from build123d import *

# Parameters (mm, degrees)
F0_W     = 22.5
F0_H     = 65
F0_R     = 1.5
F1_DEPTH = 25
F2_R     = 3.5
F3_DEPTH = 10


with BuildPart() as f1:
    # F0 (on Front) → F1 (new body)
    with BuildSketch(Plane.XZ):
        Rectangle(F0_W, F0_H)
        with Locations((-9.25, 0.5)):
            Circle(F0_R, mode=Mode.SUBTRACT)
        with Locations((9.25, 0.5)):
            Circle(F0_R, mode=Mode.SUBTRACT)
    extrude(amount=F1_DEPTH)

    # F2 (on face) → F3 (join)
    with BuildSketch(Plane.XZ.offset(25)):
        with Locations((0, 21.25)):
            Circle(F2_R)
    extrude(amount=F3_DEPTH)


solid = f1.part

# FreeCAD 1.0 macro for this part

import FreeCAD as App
import Part
import Sketcher

V = App.Vector
Q = App.Units.Quantity

doc = App.newDocument("Part")
body = doc.addObject("PartDesign::Body", "Body")

# Sketch on XZ plane
sketch1 = doc.addObject("Sketcher::SketchObject", "Sketch")
body.addObject(sketch1)
sketch1.AttachmentSupport = (doc.XZ_Plane, [""])
sketch1.MapMode = "FlatFace"
sketch1.addGeometry([
    Part.LineSegment(V(-11.25, 32.5, 0), V(-11.25, -32.5, 0)),  # 0
    Part.LineSegment(V(-11.25, -32.5, 0), V(11.25, -32.5, 0)),  # 1
    Part.LineSegment(V(11.25, -32.5, 0), V(11.25, 32.5, 0)),  # 2
    Part.LineSegment(V(11.25, 32.5, 0), V(-11.25, 32.5, 0)),  # 3
    Part.Circle(V(-9.25, 0.5, 0), V(0, 0, 1), 1.5),  # 4
    Part.Circle(V(9.25, 0.5, 0), V(0, 0, 1), 1.5),  # 5
], False)
sketch1.addConstraint([
    Sketcher.Constraint("Coincident", 0, 2, 1, 1),
    Sketcher.Constraint("Coincident", 1, 2, 2, 1),
    Sketcher.Constraint("Coincident", 2, 2, 3, 1),
    Sketcher.Constraint("Coincident", 3, 2, 0, 1),
    Sketcher.Constraint("Vertical", 0),
    Sketcher.Constraint("Horizontal", 1),
    Sketcher.Constraint("Vertical", 2),
    Sketcher.Constraint("Horizontal", 3),
    Sketcher.Constraint("Equal", 4, 5),
    Sketcher.Constraint("Symmetric", 0, 2, 2, 2, -1, 1),
    Sketcher.Constraint("Symmetric", 4, 3, 5, 3, -2),
    Sketcher.Constraint("Diameter", 4, Q("3 mm")),
    Sketcher.Constraint("DistanceY", 0, 2, 0, 1, Q("65 mm")),
    Sketcher.Constraint("DistanceX", 1, 1, 1, 2, Q("22.5 mm")),
    Sketcher.Constraint("DistanceX", 0, 2, 4, 3, Q("2 mm")),
    Sketcher.Constraint("DistanceY", 0, 2, 4, 3, Q("33 mm")),
])
pad1 = doc.addObject("PartDesign::Pad", "Pad")
body.addObject(pad1)
pad1.Profile = sketch1
pad1.Length = 25

# Sketch on XZ plane
sketch2 = doc.addObject("Sketcher::SketchObject", "Sketch001")
body.addObject(sketch2)
sketch2.AttachmentSupport = (doc.XZ_Plane, [""])
sketch2.MapMode = "FlatFace"
sketch2.AttachmentOffset = App.Placement(V(0, 0, 25), App.Rotation())
sketch2.addGeometry(Part.Circle(V(0, 21.25, 0), V(0, 0, 1), 3.5), False)
sketch2.addConstraint([
    Sketcher.Constraint("PointOnObject", 0, 3, -2),
    Sketcher.Constraint("Diameter", 0, Q("7 mm")),
    Sketcher.Constraint("DistanceY", -1, 1, 0, 3, Q("21.25 mm")),
])
pad2 = doc.addObject("PartDesign::Pad", "Pad001")
body.addObject(pad2)
pad2.Profile = sketch2
pad2.Length = 10

doc.recompute()
